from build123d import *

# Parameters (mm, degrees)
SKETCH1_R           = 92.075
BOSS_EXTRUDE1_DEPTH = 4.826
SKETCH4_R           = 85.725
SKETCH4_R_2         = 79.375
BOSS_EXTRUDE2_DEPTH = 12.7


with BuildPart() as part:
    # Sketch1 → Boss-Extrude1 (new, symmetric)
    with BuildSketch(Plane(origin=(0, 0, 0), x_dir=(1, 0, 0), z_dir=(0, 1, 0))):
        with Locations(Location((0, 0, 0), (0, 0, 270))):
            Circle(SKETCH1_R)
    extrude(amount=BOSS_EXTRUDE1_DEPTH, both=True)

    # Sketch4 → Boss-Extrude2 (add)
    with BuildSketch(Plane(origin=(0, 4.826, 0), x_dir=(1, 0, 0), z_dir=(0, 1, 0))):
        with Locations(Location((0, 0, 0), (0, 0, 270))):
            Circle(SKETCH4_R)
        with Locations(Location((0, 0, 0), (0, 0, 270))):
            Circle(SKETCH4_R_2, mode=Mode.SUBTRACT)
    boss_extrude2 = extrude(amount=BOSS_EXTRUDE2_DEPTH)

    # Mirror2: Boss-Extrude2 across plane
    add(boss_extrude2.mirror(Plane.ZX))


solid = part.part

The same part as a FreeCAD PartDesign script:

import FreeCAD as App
import Part
import Sketcher
Q = App.Units.Quantity

doc = App.newDocument("Part")
body = doc.addObject("PartDesign::Body", "Body")

# Sketch on XZ plane
sketch1 = body.newObject("Sketcher::SketchObject", "Sketch")
sketch1.AttachmentSupport = (doc.getObject("XZ_Plane"), [""])
sketch1.MapMode = "FlatFace"
sketch1.addGeometry(Part.Circle(App.Vector(0, 0, 0), App.Vector(0, 0, 1), 92), False)
sketch1.addConstraint([
    Sketcher.Constraint("Coincident", 0, 3, -1, 1),
    Sketcher.Constraint("Diameter", 0, Q("7.25 in")),
])
pad1 = body.newObject("PartDesign::Pad", "Pad")
pad1.Profile = sketch1
pad1.Length = Q("0.38 in")
pad1.Midplane = True

# Sketch on XZ plane
sketch2 = body.newObject("Sketcher::SketchObject", "Sketch001")
sketch2.AttachmentSupport = (doc.getObject("XZ_Plane"), [""])
sketch2.MapMode = "FlatFace"
sketch2.AttachmentOffset = App.Placement(App.Vector(0, 0, -0.19 * 25.4), App.Rotation())
sketch2.addGeometry([
    Part.Circle(App.Vector(0, 0, 0), App.Vector(0, 0, 1), 86),
    Part.Circle(App.Vector(0, 0, 0), App.Vector(0, 0, 1), 79),
], False)
sketch2.addConstraint([
    Sketcher.Constraint("Coincident", 0, 3, -1, 1),
    Sketcher.Constraint("Coincident", 1, 3, -1, 1),
    Sketcher.Constraint("Diameter", 0, Q("6.75 in")),
    Sketcher.Constraint("Diameter", 1, Q("6.25 in")),
])
pad2 = body.newObject("PartDesign::Pad", "Pad001")
pad2.Profile = sketch2
pad2.Length = Q("0.5 in")
pad2.Reversed = True
doc.recompute()

mirrored = body.newObject("PartDesign::Mirrored", "Mirrored")
mirrored.Originals = [pad2]
mirrored.MirrorPlane = (doc.getObject("XZ_Plane"), [""])
body.Tip = mirrored

doc.recompute()
